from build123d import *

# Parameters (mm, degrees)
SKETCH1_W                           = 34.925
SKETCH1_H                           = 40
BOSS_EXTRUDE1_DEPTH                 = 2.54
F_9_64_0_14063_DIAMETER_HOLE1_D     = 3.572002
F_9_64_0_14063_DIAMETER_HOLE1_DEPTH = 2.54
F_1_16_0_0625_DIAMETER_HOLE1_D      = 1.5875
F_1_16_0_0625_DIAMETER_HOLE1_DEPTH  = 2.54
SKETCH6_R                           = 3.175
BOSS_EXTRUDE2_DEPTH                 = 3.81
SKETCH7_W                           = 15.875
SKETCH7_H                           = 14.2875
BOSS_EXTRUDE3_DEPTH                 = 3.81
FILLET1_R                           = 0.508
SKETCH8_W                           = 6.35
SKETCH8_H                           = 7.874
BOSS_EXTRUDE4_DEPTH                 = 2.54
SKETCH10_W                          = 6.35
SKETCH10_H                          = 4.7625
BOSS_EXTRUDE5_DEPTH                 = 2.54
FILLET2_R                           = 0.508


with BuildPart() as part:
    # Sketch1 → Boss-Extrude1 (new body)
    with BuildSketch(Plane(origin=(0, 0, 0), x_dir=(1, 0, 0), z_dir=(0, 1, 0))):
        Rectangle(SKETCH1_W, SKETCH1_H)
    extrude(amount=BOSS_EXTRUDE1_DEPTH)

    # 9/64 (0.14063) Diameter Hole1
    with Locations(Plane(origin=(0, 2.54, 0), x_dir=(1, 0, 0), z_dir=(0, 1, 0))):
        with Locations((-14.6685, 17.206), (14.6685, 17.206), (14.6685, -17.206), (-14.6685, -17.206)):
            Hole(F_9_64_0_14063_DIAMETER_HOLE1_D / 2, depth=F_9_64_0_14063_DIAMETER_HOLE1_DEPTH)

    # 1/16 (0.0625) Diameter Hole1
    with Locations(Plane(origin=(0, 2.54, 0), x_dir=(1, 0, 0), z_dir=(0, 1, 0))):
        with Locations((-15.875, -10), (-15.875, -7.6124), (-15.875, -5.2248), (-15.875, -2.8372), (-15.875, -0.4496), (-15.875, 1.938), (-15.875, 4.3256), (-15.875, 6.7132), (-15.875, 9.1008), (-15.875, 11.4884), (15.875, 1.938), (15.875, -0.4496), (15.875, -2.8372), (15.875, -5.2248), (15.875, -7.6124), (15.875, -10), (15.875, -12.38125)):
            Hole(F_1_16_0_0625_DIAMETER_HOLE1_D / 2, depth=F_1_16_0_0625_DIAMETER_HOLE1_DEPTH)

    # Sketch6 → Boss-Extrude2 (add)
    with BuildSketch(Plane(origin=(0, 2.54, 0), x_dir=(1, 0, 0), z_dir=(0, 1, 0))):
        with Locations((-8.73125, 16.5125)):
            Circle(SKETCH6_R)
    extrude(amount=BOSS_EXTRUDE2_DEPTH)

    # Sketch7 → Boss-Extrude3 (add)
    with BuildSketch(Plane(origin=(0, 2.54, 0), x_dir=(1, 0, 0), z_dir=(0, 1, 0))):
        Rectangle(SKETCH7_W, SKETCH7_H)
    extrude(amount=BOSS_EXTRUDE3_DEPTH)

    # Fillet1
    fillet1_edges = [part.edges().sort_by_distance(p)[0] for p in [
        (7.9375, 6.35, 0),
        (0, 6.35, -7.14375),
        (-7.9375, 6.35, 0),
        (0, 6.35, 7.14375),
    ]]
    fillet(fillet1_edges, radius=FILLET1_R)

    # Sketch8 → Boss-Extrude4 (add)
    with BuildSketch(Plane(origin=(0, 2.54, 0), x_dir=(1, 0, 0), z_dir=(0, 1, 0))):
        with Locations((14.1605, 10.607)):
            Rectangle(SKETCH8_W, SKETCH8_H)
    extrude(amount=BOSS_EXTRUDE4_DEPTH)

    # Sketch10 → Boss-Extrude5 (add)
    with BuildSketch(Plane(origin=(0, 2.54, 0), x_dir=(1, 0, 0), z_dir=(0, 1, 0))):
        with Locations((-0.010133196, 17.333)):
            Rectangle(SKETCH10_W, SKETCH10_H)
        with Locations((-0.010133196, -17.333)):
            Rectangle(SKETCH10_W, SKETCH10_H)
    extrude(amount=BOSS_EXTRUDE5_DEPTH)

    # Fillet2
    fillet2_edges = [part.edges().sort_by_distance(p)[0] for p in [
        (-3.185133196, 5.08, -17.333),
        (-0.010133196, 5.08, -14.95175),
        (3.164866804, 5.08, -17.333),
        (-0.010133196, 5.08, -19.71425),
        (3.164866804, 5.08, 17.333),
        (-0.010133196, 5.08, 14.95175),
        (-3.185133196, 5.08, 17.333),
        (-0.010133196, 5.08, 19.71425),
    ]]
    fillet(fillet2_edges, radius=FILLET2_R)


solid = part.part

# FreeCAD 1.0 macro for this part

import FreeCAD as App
import Part
import Sketcher
from FreeCAD import Vector
Q = App.Units.Quantity


def edges_at(feature, points):
    """Names of the edges that pass closest to the given points."""
    edges = feature.Shape.Edges
    near = lambda p: min(range(len(edges)), key=lambda i: edges[i].distToShape(Part.Vertex(*p))[0])
    return sorted({f"Edge{near(p) + 1}" for p in points})

doc = App.newDocument("Part")
body = doc.addObject("PartDesign::Body", "Body")

# Sketch on XZ plane
sketch1 = body.newObject("Sketcher::SketchObject", "Sketch")
sketch1.AttachmentSupport = (doc.getObject("XZ_Plane"), [""])
sketch1.MapMode = "FlatFace"
sketch1.addGeometry([
    Part.LineSegment(Vector(-17.4625, -20, 0), Vector(-17.4625, 20, 0)),
    Part.LineSegment(Vector(-17.4625, 20, 0), Vector(17.4625, 20, 0)),
    Part.LineSegment(Vector(17.4625, 20, 0), Vector(17.4625, -20, 0)),
    Part.LineSegment(Vector(17.4625, -20, 0), Vector(-17.4625, -20, 0)),
], False)
sketch1.addConstraint([
    Sketcher.Constraint("Coincident", 0, 2, 1, 1),
    Sketcher.Constraint("Coincident", 1, 2, 2, 1),
    Sketcher.Constraint("Coincident", 2, 2, 3, 1),
    Sketcher.Constraint("Coincident", 3, 2, 0, 1),
    Sketcher.Constraint("Vertical", 0),
    Sketcher.Constraint("Horizontal", 1),
    Sketcher.Constraint("Vertical", 2),
    Sketcher.Constraint("Horizontal", 3),
    Sketcher.Constraint("Symmetric", 0, 2, 2, 2, -1, 1),
    Sketcher.Constraint("DistanceX", 1, 1, 1, 2, Q("1.375 in")),
    Sketcher.Constraint("DistanceY", 0, 1, 0, 2, Q("40 mm")),
])
pad1 = body.newObject("PartDesign::Pad", "Pad")
pad1.Profile = sketch1
pad1.Length = Q("0.1 in")
pad1.Reversed = True

# Sketch on XZ plane
sketch2 = body.newObject("Sketcher::SketchObject", "Sketch001")
sketch2.AttachmentSupport = (doc.getObject("XZ_Plane"), [""])
sketch2.MapMode = "FlatFace"
sketch2.AttachmentOffset = App.Placement(Vector(0, 0, -0.1 * 25.4), App.Rotation())
sketch2.addGeometry([
    Part.Circle(Vector(-14.6685, -17.206, 0), Vector(0, 0, 1), 1.786001),
    Part.Circle(Vector(14.6685, -17.206, 0), Vector(0, 0, 1), 1.786001),
    Part.Circle(Vector(14.6685, 17.206, 0), Vector(0, 0, 1), 1.786001),
    Part.Circle(Vector(-14.6685, 17.206, 0), Vector(0, 0, 1), 1.786001),
], False)
sketch2.addConstraint([
    Sketcher.Constraint("Equal", 0, 1),
    Sketcher.Constraint("Equal", 1, 2),
    Sketcher.Constraint("Equal", 2, 3),
    Sketcher.Constraint("Symmetric", 0, 3, 2, 3, -1, 1),
    Sketcher.Constraint("Symmetric", 1, 3, 3, 3, -1, 1),
    Sketcher.Constraint("Symmetric", 0, 3, 1, 3, -2),
    Sketcher.Constraint("Diameter", 0, Q("3.572002 mm")),
    Sketcher.Constraint("DistanceX", 0, 3, 1, 3, Q("1.155 in")),
    Sketcher.Constraint("DistanceY", 0, 3, -1, 1, Q("17.206 mm")),
])
doc.recompute()
hole = body.newObject("PartDesign::Hole", "Hole")
hole.Profile = sketch2
hole.ThreadType = "None"
hole.Diameter = 3.572002
hole.DepthType = "Dimension"
hole.Depth = Q("0.1 in")
hole.DrillPoint = "Flat"
hole.Reversed = True

# Sketch on XZ plane
sketch3 = body.newObject("Sketcher::SketchObject", "Sketch002")
sketch3.AttachmentSupport = (doc.getObject("XZ_Plane"), [""])
sketch3.MapMode = "FlatFace"
sketch3.AttachmentOffset = App.Placement(Vector(0, 0, -0.1 * 25.4), App.Rotation())
sketch3.addGeometry([
    Part.Circle(Vector(-15.875, 10, 0), Vector(0, 0, 1), 0.79375),  # 0
    Part.Circle(Vector(-15.875, 7.6124, 0), Vector(0, 0, 1), 0.79375),  # 1
    Part.Circle(Vector(-15.875, 5.2248, 0), Vector(0, 0, 1), 0.79375),  # 2
    Part.Circle(Vector(-15.875, 2.8372, 0), Vector(0, 0, 1), 0.79375),  # 3
    Part.Circle(Vector(-15.875, 0.4496, 0), Vector(0, 0, 1), 0.79375),  # 4
    Part.Circle(Vector(-15.875, -1.938, 0), Vector(0, 0, 1), 0.79375),  # 5
    Part.Circle(Vector(-15.875, -4.3256, 0), Vector(0, 0, 1), 0.79375),  # 6
    Part.Circle(Vector(-15.875, -6.7132, 0), Vector(0, 0, 1), 0.79375),  # 7
    Part.Circle(Vector(-15.875, -9.1008, 0), Vector(0, 0, 1), 0.79375),  # 8
    Part.Circle(Vector(-15.875, -11.4884, 0), Vector(0, 0, 1), 0.79375),  # 9
    Part.Circle(Vector(15.875, -1.938, 0), Vector(0, 0, 1), 0.79375),  # 10
    Part.Circle(Vector(15.875, 0.4496, 0), Vector(0, 0, 1), 0.79375),  # 11
    Part.Circle(Vector(15.875, 2.8372, 0), Vector(0, 0, 1), 0.79375),  # 12
    Part.Circle(Vector(15.875, 5.2248, 0), Vector(0, 0, 1), 0.79375),  # 13
    Part.Circle(Vector(15.875, 7.6124, 0), Vector(0, 0, 1), 0.79375),  # 14
    Part.Circle(Vector(15.875, 10, 0), Vector(0, 0, 1), 0.79375),  # 15
    Part.Circle(Vector(15.875, 12.38125, 0), Vector(0, 0, 1), 0.79375),  # 16
], False)
sketch3.addConstraint([
    Sketcher.Constraint("Equal", 0, 1),
    Sketcher.Constraint("Equal", 1, 2),
    Sketcher.Constraint("Equal", 2, 3),
    Sketcher.Constraint("Equal", 3, 4),
    Sketcher.Constraint("Equal", 4, 5),
    Sketcher.Constraint("Equal", 5, 6),
    Sketcher.Constraint("Equal", 6, 7),
    Sketcher.Constraint("Equal", 7, 8),
    Sketcher.Constraint("Equal", 8, 9),
    Sketcher.Constraint("Equal", 9, 10),
    Sketcher.Constraint("Equal", 10, 11),
    Sketcher.Constraint("Equal", 11, 12),
    Sketcher.Constraint("Equal", 12, 13),
    Sketcher.Constraint("Equal", 13, 14),
    Sketcher.Constraint("Equal", 14, 15),
    Sketcher.Constraint("Equal", 15, 16),
    Sketcher.Constraint("Symmetric", 5, 3, 10, 3, -2),
    Sketcher.Constraint("Symmetric", 4, 3, 11, 3, -2),
    Sketcher.Constraint("Symmetric", 3, 3, 12, 3, -2),
    Sketcher.Constraint("Symmetric", 2, 3, 13, 3, -2),
    Sketcher.Constraint("Symmetric", 1, 3, 14, 3, -2),
    Sketcher.Constraint("Symmetric", 0, 3, 15, 3, -2),
    Sketcher.Constraint("Vertical", 0, 3, 1, 3),
    Sketcher.Constraint("Vertical", 1, 3, 2, 3),
    Sketcher.Constraint("Vertical", 2, 3, 3, 3),
    Sketcher.Constraint("Vertical", 3, 3, 4, 3),
    Sketcher.Constraint("Vertical", 4, 3, 5, 3),
    Sketcher.Constraint("Vertical", 5, 3, 6, 3),
    Sketcher.Constraint("Vertical", 6, 3, 7, 3),
    Sketcher.Constraint("Vertical", 7, 3, 8, 3),
    Sketcher.Constraint("Vertical", 8, 3, 9, 3),
    Sketcher.Constraint("Vertical", 15, 3, 16, 3),
    Sketcher.Constraint("Diameter", 0, Q("0.0625 in")),
    Sketcher.Constraint("DistanceY", 5, 3, 0, 3, Q("0.47 in")),
    Sketcher.Constraint("DistanceY", 6, 3, 1, 3, Q("0.47 in")),
    Sketcher.Constraint("DistanceY", 7, 3, 2, 3, Q("0.47 in")),
    Sketcher.Constraint("DistanceY", 8, 3, 3, 3, Q("0.47 in")),
    Sketcher.Constraint("DistanceY", 9, 3, 4, 3, Q("0.47 in")),
    Sketcher.Constraint("DistanceX", 5, 3, 10, 3, Q("1.25 in")),
    Sketcher.Constraint("DistanceY", 1, 3, 0, 3, Q("0.094 in")),
    Sketcher.Constraint("DistanceY", 2, 3, 1, 3, Q("0.094 in")),
    Sketcher.Constraint("DistanceY", 3, 3, 2, 3, Q("0.094 in")),
    Sketcher.Constraint("DistanceY", 4, 3, 3, 3, Q("0.094 in")),
    Sketcher.Constraint("DistanceY", 15, 3, 16, 3, Q("0.09375 in")),
    Sketcher.Constraint("DistanceY", -1, 1, 0, 3, Q("10 mm")),
])
doc.recompute()
hole2 = body.newObject("PartDesign::Hole", "Hole001")
hole2.Profile = sketch3
hole2.ThreadType = "None"
hole2.Diameter = Q("0.0625 in")
hole2.DepthType = "Dimension"
hole2.Depth = Q("0.1 in")
hole2.DrillPoint = "Flat"
hole2.Reversed = True

# Sketch on XZ plane
sketch4 = body.newObject("Sketcher::SketchObject", "Sketch003")
sketch4.AttachmentSupport = (doc.getObject("XZ_Plane"), [""])
sketch4.MapMode = "FlatFace"
sketch4.AttachmentOffset = App.Placement(Vector(0, 0, -0.1 * 25.4), App.Rotation())
sketch4.addGeometry(Part.Circle(Vector(-8.73125, -16.5125, 0), Vector(0, 0, 1), 3.175), False)
sketch4.addConstraint([
    Sketcher.Constraint("Diameter", 0, Q("0.25 in")),
    Sketcher.Constraint("DistanceX", 0, 3, -1, 1, Q("0.34375 in")),
    Sketcher.Constraint("DistanceY", 0, 3, -1, 1, Q("16.5125 mm")),
])
pad2 = body.newObject("PartDesign::Pad", "Pad001")
pad2.Profile = sketch4
pad2.Length = Q("0.15 in")
pad2.Reversed = True

# Sketch on XZ plane
sketch5 = body.newObject("Sketcher::SketchObject", "Sketch004")
sketch5.AttachmentSupport = (doc.getObject("XZ_Plane"), [""])
sketch5.MapMode = "FlatFace"
sketch5.AttachmentOffset = App.Placement(Vector(0, 0, -0.1 * 25.4), App.Rotation())
sketch5.addGeometry([
    Part.LineSegment(Vector(-7.9375, -7.14375, 0), Vector(-7.9375, 7.14375, 0)),
    Part.LineSegment(Vector(-7.9375, 7.14375, 0), Vector(7.9375, 7.14375, 0)),
    Part.LineSegment(Vector(7.9375, 7.14375, 0), Vector(7.9375, -7.14375, 0)),
    Part.LineSegment(Vector(7.9375, -7.14375, 0), Vector(-7.9375, -7.14375, 0)),
], False)
sketch5.addConstraint([
    Sketcher.Constraint("Coincident", 0, 2, 1, 1),
    Sketcher.Constraint("Coincident", 1, 2, 2, 1),
    Sketcher.Constraint("Coincident", 2, 2, 3, 1),
    Sketcher.Constraint("Coincident", 3, 2, 0, 1),
    Sketcher.Constraint("Vertical", 0),
    Sketcher.Constraint("Horizontal", 1),
    Sketcher.Constraint("Vertical", 2),
    Sketcher.Constraint("Horizontal", 3),
    Sketcher.Constraint("Symmetric", 0, 2, 2, 2, -1, 1),
    Sketcher.Constraint("DistanceX", 1, 1, 1, 2, Q("0.625 in")),
    Sketcher.Constraint("DistanceY", 0, 1, 0, 2, Q("0.5625 in")),
])
pad3 = body.newObject("PartDesign::Pad", "Pad002")
pad3.Profile = sketch5
pad3.Length = Q("0.15 in")
pad3.Reversed = True
doc.recompute()

fillet = body.newObject("PartDesign::Fillet", "Fillet")
fillet.Base = (pad3, edges_at(pad3, [
    (7.938, 6.35, 0),
    (0, 6.35, -7.144),
    (-7.938, 6.35, 0),
    (0, 6.35, 7.144),
]))
fillet.Radius = Q("0.02 in")

# Sketch on XZ plane
sketch6 = body.newObject("Sketcher::SketchObject", "Sketch005")
sketch6.AttachmentSupport = (doc.getObject("XZ_Plane"), [""])
sketch6.MapMode = "FlatFace"
sketch6.AttachmentOffset = App.Placement(Vector(0, 0, -0.1 * 25.4), App.Rotation())
sketch6.addGeometry([
    Part.LineSegment(Vector(10.9855, -14.544, 0), Vector(10.9855, -6.67, 0)),
    Part.LineSegment(Vector(10.9855, -6.67, 0), Vector(17.3355, -6.67, 0)),
    Part.LineSegment(Vector(17.3355, -6.67, 0), Vector(17.3355, -14.544, 0)),
    Part.LineSegment(Vector(17.3355, -14.544, 0), Vector(10.9855, -14.544, 0)),
], False)
sketch6.addConstraint([
    Sketcher.Constraint("Coincident", 0, 2, 1, 1),
    Sketcher.Constraint("Coincident", 1, 2, 2, 1),
    Sketcher.Constraint("Coincident", 2, 2, 3, 1),
    Sketcher.Constraint("Coincident", 3, 2, 0, 1),
    Sketcher.Constraint("Vertical", 0),
    Sketcher.Constraint("Horizontal", 1),
    Sketcher.Constraint("Vertical", 2),
    Sketcher.Constraint("Horizontal", 3),
    Sketcher.Constraint("DistanceX", 1, 1, 1, 2, Q("0.25 in")),
    Sketcher.Constraint("DistanceY", 0, 1, 0, 2, Q("0.31 in")),
    Sketcher.Constraint("DistanceX", -1, 1, 0, 2, Q("0.4325 in")),
    Sketcher.Constraint("DistanceY", 0, 2, -1, 1, Q("6.67 mm")),
])
pad4 = body.newObject("PartDesign::Pad", "Pad003")
pad4.Profile = sketch6
pad4.Length = Q("0.1 in")
pad4.Reversed = True

# Sketch on XZ plane
sketch7 = body.newObject("Sketcher::SketchObject", "Sketch006")
sketch7.AttachmentSupport = (doc.getObject("XZ_Plane"), [""])
sketch7.MapMode = "FlatFace"
sketch7.AttachmentOffset = App.Placement(Vector(0, 0, -0.1 * 25.4), App.Rotation())
sketch7.addGeometry([
    Part.LineSegment(Vector(-3.185133, -19.71425, 0), Vector(-3.185133, -14.95175, 0)),  # 0
    Part.LineSegment(Vector(-3.185133, -14.95175, 0), Vector(3.164867, -14.95175, 0)),  # 1
    Part.LineSegment(Vector(3.164867, -14.95175, 0), Vector(3.164867, -19.71425, 0)),  # 2
    Part.LineSegment(Vector(3.164867, -19.71425, 0), Vector(-3.185133, -19.71425, 0)),  # 3
    Part.LineSegment(Vector(-3.185133, 14.95175, 0), Vector(-3.185133, 19.71425, 0)),  # 4
    Part.LineSegment(Vector(-3.185133, 19.71425, 0), Vector(3.164867, 19.71425, 0)),  # 5
    Part.LineSegment(Vector(3.164867, 19.71425, 0), Vector(3.164867, 14.95175, 0)),  # 6
    Part.LineSegment(Vector(3.164867, 14.95175, 0), Vector(-3.185133, 14.95175, 0)),  # 7
], False)
sketch7.addConstraint([
    Sketcher.Constraint("Coincident", 0, 2, 1, 1),
    Sketcher.Constraint("Coincident", 1, 2, 2, 1),
    Sketcher.Constraint("Coincident", 2, 2, 3, 1),
    Sketcher.Constraint("Coincident", 3, 2, 0, 1),
    Sketcher.Constraint("Coincident", 4, 2, 5, 1),
    Sketcher.Constraint("Coincident", 5, 2, 6, 1),
    Sketcher.Constraint("Coincident", 6, 2, 7, 1),
    Sketcher.Constraint("Coincident", 7, 2, 4, 1),
    Sketcher.Constraint("Vertical", 0),
    Sketcher.Constraint("Horizontal", 1),
    Sketcher.Constraint("Vertical", 2),
    Sketcher.Constraint("Horizontal", 3),
    Sketcher.Constraint("Vertical", 4),
    Sketcher.Constraint("Horizontal", 5),
    Sketcher.Constraint("Vertical", 6),
    Sketcher.Constraint("Horizontal", 7),
    Sketcher.Constraint("Symmetric", 3, 2, 4, 2, -1),
    Sketcher.Constraint("Symmetric", 1, 2, 6, 2, -1),
    Sketcher.Constraint("DistanceX", 1, 1, 1, 2, Q("0.25 in")),
    Sketcher.Constraint("DistanceY", 0, 1, 0, 2, Q("0.1875 in")),
    Sketcher.Constraint("DistanceY", 0, 2, 4, 2, Q("34.666 mm")),
    Sketcher.Constraint("DistanceX", 0, 2, -1, 1, Q("3.185133 mm")),
])
pad5 = body.newObject("PartDesign::Pad", "Pad004")
pad5.Profile = sketch7
pad5.Length = Q("0.1 in")
pad5.Reversed = True
doc.recompute()

fillet2 = body.newObject("PartDesign::Fillet", "Fillet001")
fillet2.Base = (pad5, edges_at(pad5, [
    (-3.185, 5.08, -17.333),
    (-0.01, 5.08, -14.952),
    (3.165, 5.08, -17.333),
    (-0.01, 5.08, -19.714),
    (3.165, 5.08, 17.333),
    (-0.01, 5.08, 14.952),
    (-3.185, 5.08, 17.333),
    (-0.01, 5.08, 19.714),
]))
fillet2.Radius = Q("0.02 in")

doc.recompute()
